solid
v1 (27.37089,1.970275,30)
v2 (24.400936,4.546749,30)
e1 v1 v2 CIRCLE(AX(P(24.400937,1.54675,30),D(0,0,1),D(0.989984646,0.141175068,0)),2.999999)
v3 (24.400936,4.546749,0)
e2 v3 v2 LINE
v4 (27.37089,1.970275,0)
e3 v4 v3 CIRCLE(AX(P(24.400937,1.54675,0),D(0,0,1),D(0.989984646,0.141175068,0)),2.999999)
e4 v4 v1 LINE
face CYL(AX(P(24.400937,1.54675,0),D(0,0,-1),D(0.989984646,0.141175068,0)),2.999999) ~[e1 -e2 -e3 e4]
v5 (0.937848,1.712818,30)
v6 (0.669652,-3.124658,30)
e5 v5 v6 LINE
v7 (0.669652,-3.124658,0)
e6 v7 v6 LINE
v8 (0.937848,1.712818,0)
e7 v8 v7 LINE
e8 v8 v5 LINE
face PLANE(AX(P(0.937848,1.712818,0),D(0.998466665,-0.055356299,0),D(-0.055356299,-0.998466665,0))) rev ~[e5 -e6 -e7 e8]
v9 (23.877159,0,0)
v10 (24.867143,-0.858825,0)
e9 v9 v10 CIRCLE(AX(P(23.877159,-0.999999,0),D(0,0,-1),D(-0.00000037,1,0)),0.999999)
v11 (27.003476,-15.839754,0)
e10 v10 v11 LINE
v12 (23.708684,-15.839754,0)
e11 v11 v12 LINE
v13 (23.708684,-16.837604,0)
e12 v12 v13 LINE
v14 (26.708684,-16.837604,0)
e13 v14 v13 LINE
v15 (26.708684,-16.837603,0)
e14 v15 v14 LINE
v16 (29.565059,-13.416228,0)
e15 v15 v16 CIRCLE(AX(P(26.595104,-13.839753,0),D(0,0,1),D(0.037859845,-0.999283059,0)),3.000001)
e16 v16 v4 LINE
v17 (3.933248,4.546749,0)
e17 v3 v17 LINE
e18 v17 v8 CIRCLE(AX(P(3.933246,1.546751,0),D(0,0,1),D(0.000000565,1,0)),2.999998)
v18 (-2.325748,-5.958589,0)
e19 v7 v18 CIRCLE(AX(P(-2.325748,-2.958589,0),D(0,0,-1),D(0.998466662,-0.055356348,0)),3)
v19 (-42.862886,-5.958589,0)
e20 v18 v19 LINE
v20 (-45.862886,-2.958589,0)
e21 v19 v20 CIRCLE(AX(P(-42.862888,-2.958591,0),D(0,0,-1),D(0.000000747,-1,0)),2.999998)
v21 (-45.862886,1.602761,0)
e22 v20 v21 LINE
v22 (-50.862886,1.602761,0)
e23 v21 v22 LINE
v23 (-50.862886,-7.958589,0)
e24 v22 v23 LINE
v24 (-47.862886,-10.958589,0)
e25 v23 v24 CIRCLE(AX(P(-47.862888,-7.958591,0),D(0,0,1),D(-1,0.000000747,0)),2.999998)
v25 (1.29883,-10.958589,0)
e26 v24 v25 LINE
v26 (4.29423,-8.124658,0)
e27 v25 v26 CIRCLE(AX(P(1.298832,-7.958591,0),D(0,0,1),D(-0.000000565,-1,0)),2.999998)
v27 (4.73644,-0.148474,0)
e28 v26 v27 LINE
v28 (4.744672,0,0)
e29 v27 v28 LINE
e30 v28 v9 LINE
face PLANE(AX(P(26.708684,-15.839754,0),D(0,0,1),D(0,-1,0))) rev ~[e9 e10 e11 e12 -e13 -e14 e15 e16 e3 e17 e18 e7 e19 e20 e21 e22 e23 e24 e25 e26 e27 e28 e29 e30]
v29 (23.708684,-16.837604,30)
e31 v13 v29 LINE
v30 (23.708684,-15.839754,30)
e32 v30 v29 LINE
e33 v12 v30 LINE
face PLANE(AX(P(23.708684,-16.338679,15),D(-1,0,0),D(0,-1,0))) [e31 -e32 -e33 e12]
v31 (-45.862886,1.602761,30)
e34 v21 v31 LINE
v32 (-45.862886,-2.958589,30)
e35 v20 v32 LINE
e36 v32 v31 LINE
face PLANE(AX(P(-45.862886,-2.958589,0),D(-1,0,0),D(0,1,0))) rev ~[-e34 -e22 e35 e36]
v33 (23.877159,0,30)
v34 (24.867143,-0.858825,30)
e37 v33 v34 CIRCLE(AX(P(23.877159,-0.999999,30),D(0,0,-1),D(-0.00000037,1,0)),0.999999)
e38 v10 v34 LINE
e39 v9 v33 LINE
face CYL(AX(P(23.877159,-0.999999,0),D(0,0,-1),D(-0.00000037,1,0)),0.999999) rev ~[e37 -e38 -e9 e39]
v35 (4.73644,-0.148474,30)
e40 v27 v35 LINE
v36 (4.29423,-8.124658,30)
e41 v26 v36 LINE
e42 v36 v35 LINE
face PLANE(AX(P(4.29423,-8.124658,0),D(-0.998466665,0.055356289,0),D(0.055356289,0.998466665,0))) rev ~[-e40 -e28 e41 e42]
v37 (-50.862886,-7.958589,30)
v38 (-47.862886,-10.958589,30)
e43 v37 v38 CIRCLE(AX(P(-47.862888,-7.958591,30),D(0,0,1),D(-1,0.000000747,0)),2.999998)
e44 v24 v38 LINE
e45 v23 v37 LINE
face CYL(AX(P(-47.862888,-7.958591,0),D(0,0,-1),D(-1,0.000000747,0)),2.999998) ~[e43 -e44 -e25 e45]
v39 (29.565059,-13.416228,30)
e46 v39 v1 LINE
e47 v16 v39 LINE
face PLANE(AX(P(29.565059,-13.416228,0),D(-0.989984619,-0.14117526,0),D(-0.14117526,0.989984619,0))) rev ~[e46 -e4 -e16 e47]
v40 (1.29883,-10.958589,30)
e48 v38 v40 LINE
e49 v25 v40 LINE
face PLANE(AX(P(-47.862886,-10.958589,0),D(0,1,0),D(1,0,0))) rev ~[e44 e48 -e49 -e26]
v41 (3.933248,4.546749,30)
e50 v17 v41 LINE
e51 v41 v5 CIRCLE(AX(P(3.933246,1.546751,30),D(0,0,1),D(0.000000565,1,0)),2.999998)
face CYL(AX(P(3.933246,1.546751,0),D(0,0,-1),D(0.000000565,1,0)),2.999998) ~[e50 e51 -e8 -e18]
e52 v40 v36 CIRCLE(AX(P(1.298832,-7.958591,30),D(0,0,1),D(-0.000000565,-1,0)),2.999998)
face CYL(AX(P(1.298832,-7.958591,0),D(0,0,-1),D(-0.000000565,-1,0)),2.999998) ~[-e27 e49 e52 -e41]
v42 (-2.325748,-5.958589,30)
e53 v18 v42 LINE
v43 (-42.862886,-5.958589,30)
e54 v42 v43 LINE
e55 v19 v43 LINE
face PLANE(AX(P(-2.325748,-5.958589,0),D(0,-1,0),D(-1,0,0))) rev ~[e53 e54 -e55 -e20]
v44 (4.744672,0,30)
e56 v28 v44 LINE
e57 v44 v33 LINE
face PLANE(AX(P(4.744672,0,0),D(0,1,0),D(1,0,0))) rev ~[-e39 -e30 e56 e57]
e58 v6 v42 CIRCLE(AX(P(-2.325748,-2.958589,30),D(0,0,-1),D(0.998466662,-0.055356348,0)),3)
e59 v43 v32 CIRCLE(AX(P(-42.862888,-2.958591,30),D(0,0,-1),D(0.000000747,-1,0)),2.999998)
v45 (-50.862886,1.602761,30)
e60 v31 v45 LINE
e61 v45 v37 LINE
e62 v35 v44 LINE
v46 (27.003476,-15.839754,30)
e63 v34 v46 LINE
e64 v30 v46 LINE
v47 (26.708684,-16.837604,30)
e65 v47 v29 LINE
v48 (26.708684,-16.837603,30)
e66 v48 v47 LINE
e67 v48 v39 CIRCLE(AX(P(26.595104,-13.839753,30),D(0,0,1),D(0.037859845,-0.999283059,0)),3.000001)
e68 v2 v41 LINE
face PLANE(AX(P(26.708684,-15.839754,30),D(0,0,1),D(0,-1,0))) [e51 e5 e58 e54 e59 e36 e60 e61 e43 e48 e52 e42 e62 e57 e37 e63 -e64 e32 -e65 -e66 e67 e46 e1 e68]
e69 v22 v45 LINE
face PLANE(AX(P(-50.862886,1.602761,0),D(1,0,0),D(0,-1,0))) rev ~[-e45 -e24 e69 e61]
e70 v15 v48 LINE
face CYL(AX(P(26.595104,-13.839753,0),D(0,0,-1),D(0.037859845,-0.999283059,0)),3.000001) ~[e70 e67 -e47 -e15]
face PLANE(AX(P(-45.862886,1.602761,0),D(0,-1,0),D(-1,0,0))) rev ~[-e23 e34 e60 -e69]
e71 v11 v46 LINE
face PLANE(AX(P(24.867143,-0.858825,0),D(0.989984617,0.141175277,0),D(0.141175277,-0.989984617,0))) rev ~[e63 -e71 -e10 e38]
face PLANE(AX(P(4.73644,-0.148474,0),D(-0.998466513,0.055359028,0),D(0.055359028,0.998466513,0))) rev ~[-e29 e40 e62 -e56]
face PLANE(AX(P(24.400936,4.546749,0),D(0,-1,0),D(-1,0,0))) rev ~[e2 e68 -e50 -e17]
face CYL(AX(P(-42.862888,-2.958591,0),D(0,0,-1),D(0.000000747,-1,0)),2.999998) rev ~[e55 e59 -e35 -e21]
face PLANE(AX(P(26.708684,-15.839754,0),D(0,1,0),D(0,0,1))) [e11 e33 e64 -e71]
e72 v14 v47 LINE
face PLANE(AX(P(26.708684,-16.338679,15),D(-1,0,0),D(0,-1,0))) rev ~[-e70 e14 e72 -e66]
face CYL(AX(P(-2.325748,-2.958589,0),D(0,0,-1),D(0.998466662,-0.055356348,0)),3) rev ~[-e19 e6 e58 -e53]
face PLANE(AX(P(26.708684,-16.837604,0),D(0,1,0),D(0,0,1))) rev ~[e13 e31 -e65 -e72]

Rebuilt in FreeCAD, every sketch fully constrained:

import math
import FreeCAD as App
import Part
import Sketcher

V = App.Vector

doc = App.newDocument("Part")
body = doc.addObject("PartDesign::Body", "Body")

# Sketch on XY plane
sketch1 = doc.addObject("Sketcher::SketchObject", "Sketch")
body.addObject(sketch1)
sketch1.AttachmentSupport = (doc.XY_Plane, [""])
sketch1.MapMode = "FlatFace"
sketch1.addGeometry([
    Part.ArcOfCircle(Part.Circle(V(-47.862888, -7.958591, 0), V(0, 0, 1), 2.999998), math.radians(179.999957), math.radians(270.000043)),  # 0
    Part.LineSegment(V(-47.862886, -10.958589, 0), V(1.29883, -10.958589, 0)),  # 1
    Part.ArcOfCircle(Part.Circle(V(1.298832, -7.958591, 0), V(0, 0, 1), 2.999998), math.radians(-90.000032), math.radians(-3.173274)),  # 2
    Part.LineSegment(V(4.29423, -8.124658, 0), V(4.73644, -0.148474, 0)),  # 3
    Part.LineSegment(V(4.73644, -0.148474, 0), V(4.744672, 0, 0)),  # 4
    Part.LineSegment(V(4.744672, 0, 0), V(23.877159, 0, 0)),  # 5
    Part.ArcOfCircle(Part.Circle(V(23.877159, -0.999999, 0), V(0, 0, 1), 0.999999), math.radians(8.115785), math.radians(90.000021)),  # 6
    Part.LineSegment(V(24.867143, -0.858825, 0), V(27.003476, -15.839754, 0)),  # 7
    Part.LineSegment(V(27.003476, -15.839754, 0), V(26.708684, -15.839754, 0)),  # 8
    Part.LineSegment(V(26.708684, -15.839754, 0), V(26.708684, -16.837603, 0)),  # 9
    Part.ArcOfCircle(Part.Circle(V(26.595104, -13.839753, 0), V(0, 0, 1), 3.000001), math.radians(-87.830272), math.radians(8.115846)),  # 10
    Part.LineSegment(V(29.565059, -13.416228, 0), V(27.37089, 1.970275, 0)),  # 11
    Part.ArcOfCircle(Part.Circle(V(24.400937, 1.54675, 0), V(0, 0, 1), 2.999999), math.radians(8.115848), math.radians(90.000019)),  # 12
    Part.LineSegment(V(24.400936, 4.546749, 0), V(3.933248, 4.546749, 0)),  # 13
    Part.ArcOfCircle(Part.Circle(V(3.933246, 1.546751, 0), V(0, 0, 1), 2.999998), math.radians(89.999968), math.radians(176.826726)),  # 14
    Part.LineSegment(V(0.937848, 1.712818, 0), V(0.669652, -3.124658, 0)),  # 15
    Part.ArcOfCircle(Part.Circle(V(-2.325748, -2.958589, 0), V(0, 0, 1), 3), math.radians(-89.999999), math.radians(-3.173307)),  # 16
    Part.LineSegment(V(-2.325748, -5.958589, 0), V(-42.862886, -5.958589, 0)),  # 17
    Part.ArcOfCircle(Part.Circle(V(-42.862888, -2.958591, 0), V(0, 0, 1), 2.999998), math.radians(179.999957), math.radians(270.000043)),  # 18
    Part.LineSegment(V(-45.862886, -2.958589, 0), V(-45.862886, 1.602761, 0)),  # 19
    Part.LineSegment(V(-45.862886, 1.602761, 0), V(-50.862886, 1.602761, 0)),  # 20
    Part.LineSegment(V(-50.862886, 1.602761, 0), V(-50.862886, -7.958589, 0)),  # 21
], False)
sketch1.addConstraint([
    Sketcher.Constraint("Coincident", 0, 2, 1, 1),
    Sketcher.Constraint("Coincident", 1, 2, 2, 1),
    Sketcher.Constraint("Coincident", 2, 2, 3, 1),
    Sketcher.Constraint("Coincident", 3, 2, 4, 1),
    Sketcher.Constraint("Coincident", 4, 2, 5, 1),
    Sketcher.Constraint("Coincident", 5, 2, 6, 2),
    Sketcher.Constraint("Coincident", 6, 1, 7, 1),
    Sketcher.Constraint("Coincident", 7, 2, 8, 1),
    Sketcher.Constraint("Coincident", 8, 2, 9, 1),
    Sketcher.Constraint("Coincident", 9, 2, 10, 1),
    Sketcher.Constraint("Coincident", 10, 2, 11, 1),
    Sketcher.Constraint("Coincident", 11, 2, 12, 1),
    Sketcher.Constraint("Coincident", 12, 2, 13, 1),
    Sketcher.Constraint("Coincident", 13, 2, 14, 1),
    Sketcher.Constraint("Coincident", 14, 2, 15, 1),
    Sketcher.Constraint("Coincident", 15, 2, 16, 2),
    Sketcher.Constraint("Coincident", 16, 1, 17, 1),
    Sketcher.Constraint("Coincident", 17, 2, 18, 2),
    Sketcher.Constraint("Coincident", 18, 1, 19, 1),
    Sketcher.Constraint("Coincident", 19, 2, 20, 1),
    Sketcher.Constraint("Coincident", 20, 2, 21, 1),
    Sketcher.Constraint("Coincident", 21, 2, 0, 1),
    Sketcher.Constraint("Horizontal", 1),
    Sketcher.Constraint("Horizontal", 5),
    Sketcher.Constraint("Horizontal", 8),
    Sketcher.Constraint("Vertical", 9),
    Sketcher.Constraint("Horizontal", 13),
    Sketcher.Constraint("Horizontal", 17),
    Sketcher.Constraint("Vertical", 19),
    Sketcher.Constraint("Horizontal", 20),
    Sketcher.Constraint("Vertical", 21),
    Sketcher.Constraint("PointOnObject", 4, 2, -1),
    Sketcher.Constraint("Radius", 2, 2.999998),
    Sketcher.Constraint("Radius", 6, 0.999999),
    Sketcher.Constraint("Radius", 10, 3.000001),
    Sketcher.Constraint("Radius", 12, 2.999999),
    Sketcher.Constraint("Radius", 14, 2.999998),
    Sketcher.Constraint("Radius", 16, 3.0),
    Sketcher.Constraint("DistanceX", 20, 2, 20, 1, 5.0),
    Sketcher.Constraint("DistanceY", 2, 3, 16, 3, 5.000002),
    Sketcher.Constraint("DistanceX", 0, 3, 18, 3, 5.0),
    Sketcher.Constraint("DistanceY", 2, 3, 18, 3, 5.0),
    Sketcher.Constraint("DistanceY", 7, 2, 10, 3, 2.000001),
    Sketcher.Constraint("DistanceX", 0, 2, 17, 2, 5.0),
    Sketcher.Constraint("DistanceX", 18, 1, 17, 2, 3.0),
    Sketcher.Constraint("DistanceY", 17, 2, 18, 1, 3.0),
    Sketcher.Constraint("DistanceY", 0, 2, 21, 2, 3.0),
    Sketcher.Constraint("DistanceX", 8, 2, 8, 1, 0.294792),
    Sketcher.Constraint("DistanceX", 13, 2, 13, 1, 20.467688),
    Sketcher.Constraint("DistanceX", 17, 2, 17, 1, 40.537138),
    Sketcher.Constraint("DistanceY", 9, 2, 9, 1, 0.997849),
    Sketcher.Constraint("DistanceY", 19, 1, 19, 2, 4.56135),
    Sketcher.Constraint("DistanceX", 2, 3, 2, 2, 2.995398),
    Sketcher.Constraint("DistanceX", 1, 2, 2, 2, 2.9954),
    Sketcher.Constraint("DistanceY", 6, 1, 11, 2, 2.8291),
    Sketcher.Constraint("DistanceX", 14, 2, 14, 3, 2.995398),
    Sketcher.Constraint("DistanceX", 14, 2, 13, 2, 2.9954),
    Sketcher.Constraint("DistanceX", 16, 3, 15, 2, 2.9954),
    Sketcher.Constraint("DistanceX", 16, 1, 15, 2, 2.9954),
    Sketcher.Constraint("DistanceX", 1, 1, 1, 2, 49.161716),
    Sketcher.Constraint("DistanceX", 5, 1, 5, 2, 19.132487),
    Sketcher.Constraint("DistanceX", 0, 3, -1, 1, 47.862888),
    Sketcher.Constraint("DistanceY", 0, 3, -1, 1, 7.958591),
    Sketcher.Constraint("DistanceX", -1, 1, 6, 3, 23.877159),
    Sketcher.Constraint("DistanceY", -1, 1, 12, 3, 1.54675),
    Sketcher.Constraint("DistanceX", -1, 1, 3, 2, 4.73644),
    Sketcher.Constraint("DistanceX", -1, 1, 4, 2, 4.744672),
    Sketcher.Constraint("DistanceX", -1, 1, 10, 2, 29.565059),
    Sketcher.Constraint("DistanceX", -1, 1, 11, 2, 27.37089),
    Sketcher.Constraint("DistanceX", -1, 1, 14, 2, 0.937848),
    Sketcher.Constraint("DistanceY", 10, 3, 0, 3, 5.881162),
    Sketcher.Constraint("DistanceX", 14, 3, 12, 3, 20.467691),
    Sketcher.Constraint("DistanceX", 14, 3, 10, 3, 22.661858),
    Sketcher.Constraint("DistanceY", 3, 2, 14, 2, 1.861292),
])
pad1 = doc.addObject("PartDesign::Pad", "Pad")
body.addObject(pad1)
pad1.Profile = sketch1
pad1.Length = 30

# Sketch on YZ plane
sketch2 = doc.addObject("Sketcher::SketchObject", "Sketch001")
body.addObject(sketch2)
sketch2.AttachmentSupport = (doc.YZ_Plane, [""])
sketch2.MapMode = "FlatFace"
sketch2.AttachmentOffset = App.Placement(V(0, 0, 26.708684), App.Rotation())
sketch2.addGeometry([
    Part.LineSegment(V(-15.8, 30, 0), V(-15.8, 0, 0)),
    Part.LineSegment(V(-15.8, 0, 0), V(-16.8, 0, 0)),
    Part.LineSegment(V(-16.8, 0, 0), V(-16.8, 30, 0)),
    Part.LineSegment(V(-16.8, 30, 0), V(-15.8, 30, 0)),
], False)
sketch2.addConstraint([
    Sketcher.Constraint("Coincident", 0, 2, 1, 1),
    Sketcher.Constraint("Coincident", 1, 2, 2, 1),
    Sketcher.Constraint("Coincident", 2, 2, 3, 1),
    Sketcher.Constraint("Coincident", 3, 2, 0, 1),
    Sketcher.Constraint("Vertical", 0),
    Sketcher.Constraint("Horizontal", 1),
    Sketcher.Constraint("Vertical", 2),
    Sketcher.Constraint("Horizontal", 3),
    Sketcher.Constraint("PointOnObject", 0, 2, -1),
    Sketcher.Constraint("DistanceY", 0, 2, 0, 1, 30.0),
    Sketcher.Constraint("DistanceX", 1, 2, 1, 1, 0.99785),
    Sketcher.Constraint("DistanceX", 0, 2, -1, 1, 15.839754),
])
pad2 = doc.addObject("PartDesign::Pad", "Pad001")
body.addObject(pad2)
pad2.Profile = sketch2
pad2.Length = 3
pad2.Reversed = True

doc.recompute()
